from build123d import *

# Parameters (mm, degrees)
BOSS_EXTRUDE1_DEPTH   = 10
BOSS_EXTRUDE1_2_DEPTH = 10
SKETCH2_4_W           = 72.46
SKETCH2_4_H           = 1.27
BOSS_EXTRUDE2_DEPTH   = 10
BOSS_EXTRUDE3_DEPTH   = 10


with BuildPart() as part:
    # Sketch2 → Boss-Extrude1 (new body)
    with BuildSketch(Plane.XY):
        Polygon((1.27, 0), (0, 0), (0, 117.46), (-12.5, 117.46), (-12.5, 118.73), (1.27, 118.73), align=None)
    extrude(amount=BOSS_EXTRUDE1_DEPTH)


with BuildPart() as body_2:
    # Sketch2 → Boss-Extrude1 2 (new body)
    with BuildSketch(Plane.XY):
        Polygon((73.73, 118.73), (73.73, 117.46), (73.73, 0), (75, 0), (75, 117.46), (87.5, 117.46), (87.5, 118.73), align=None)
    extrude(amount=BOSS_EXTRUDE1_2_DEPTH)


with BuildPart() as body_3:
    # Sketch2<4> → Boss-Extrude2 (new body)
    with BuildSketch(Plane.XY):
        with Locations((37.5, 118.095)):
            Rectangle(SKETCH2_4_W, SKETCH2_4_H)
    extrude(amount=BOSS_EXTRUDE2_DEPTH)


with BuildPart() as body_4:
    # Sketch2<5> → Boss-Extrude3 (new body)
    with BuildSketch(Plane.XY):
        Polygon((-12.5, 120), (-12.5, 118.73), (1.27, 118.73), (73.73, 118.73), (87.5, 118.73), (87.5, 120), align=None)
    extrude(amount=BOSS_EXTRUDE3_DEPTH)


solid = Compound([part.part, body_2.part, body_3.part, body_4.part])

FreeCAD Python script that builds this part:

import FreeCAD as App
import Part
import Sketcher
Q = App.Units.Quantity


def add_polygon(sketch, points):
    """Adds a closed chain of lines whose ends are joined by coincident constraints."""
    first, n = sketch.GeometryCount, len(points)
    for a, b in zip(points, points[1:] + points[:1]):
        sketch.addGeometry(Part.LineSegment(App.Vector(*a, 0), App.Vector(*b, 0)), False)
    for i in range(n):
        sketch.addConstraint(Sketcher.Constraint("Coincident", first + i, 2, first + (i + 1) % n, 1))

doc = App.newDocument("Part")
body = doc.addObject("PartDesign::Body", "Body")

# Sketch on XY plane
sketch1 = body.newObject("Sketcher::SketchObject", "Sketch")
sketch1.AttachmentSupport = (doc.getObject("XY_Plane"), [""])
sketch1.MapMode = "FlatFace"
add_polygon(sketch1, [(0, 0), (1.3, 0), (1.3, 118.7), (-12.5, 118.7), (-12.5, 117.5), (0, 117.5)])  # lines 0-5
sketch1.addConstraint([
    Sketcher.Constraint("Horizontal", 0),
    Sketcher.Constraint("Vertical", 1),
    Sketcher.Constraint("Horizontal", 2),
    Sketcher.Constraint("Vertical", 3),
    Sketcher.Constraint("Horizontal", 4),
    Sketcher.Constraint("Vertical", 5),
    Sketcher.Constraint("Coincident", 5, 2, -1, 1),
    Sketcher.Constraint("Equal", 0, 3),
    Sketcher.Constraint("DistanceX", 4, 1, 4, 2, Q("12.5 mm")),
    Sketcher.Constraint("DistanceX", 0, 1, 0, 2, Q("1.27 mm")),
    Sketcher.Constraint("DistanceY", 1, 1, 1, 2, Q("118.73 mm")),
])
pad1 = body.newObject("PartDesign::Pad", "Pad")
pad1.Profile = sketch1
pad1.Length = 10
body2 = doc.addObject("PartDesign::Body", "Body001")

# Sketch on XY plane
sketch2 = body2.newObject("Sketcher::SketchObject", "Sketch001")
sketch2.AttachmentSupport = (doc.getObject("XY_Plane001"), [""])
sketch2.MapMode = "FlatFace"
add_polygon(sketch2, [(73.7, 118.7), (73.7, 0), (75, 0), (75, 117.5), (87.5, 117.5), (87.5, 118.7)])  # lines 0-5
sketch2.addConstraint([
    Sketcher.Constraint("Vertical", 0),
    Sketcher.Constraint("Horizontal", 1),
    Sketcher.Constraint("Vertical", 2),
    Sketcher.Constraint("Horizontal", 3),
    Sketcher.Constraint("Vertical", 4),
    Sketcher.Constraint("Horizontal", 5),
    Sketcher.Constraint("PointOnObject", 0, 2, -1),
    Sketcher.Constraint("Equal", 1, 4),
    Sketcher.Constraint("DistanceX", 3, 1, 3, 2, Q("12.5 mm")),
    Sketcher.Constraint("DistanceX", -1, 1, 1, 2, Q("75 mm")),
    Sketcher.Constraint("DistanceX", 1, 1, 1, 2, Q("1.27 mm")),
    Sketcher.Constraint("DistanceY", 0, 2, 0, 1, Q("118.73 mm")),
])
pad2 = body2.newObject("PartDesign::Pad", "Pad001")
pad2.Profile = sketch2
pad2.Length = 10
body3 = doc.addObject("PartDesign::Body", "Body002")

# Sketch on XY plane
sketch3 = body3.newObject("Sketcher::SketchObject", "Sketch002")
sketch3.AttachmentSupport = (doc.getObject("XY_Plane002"), [""])
sketch3.MapMode = "FlatFace"
add_polygon(sketch3, [(1.3, 118.7), (1.3, 117.5), (73.7, 117.5), (73.7, 118.7)])  # lines 0-3
sketch3.addConstraint([
    Sketcher.Constraint("Vertical", 0),
    Sketcher.Constraint("Horizontal", 1),
    Sketcher.Constraint("Vertical", 2),
    Sketcher.Constraint("Horizontal", 3),
    Sketcher.Constraint("DistanceX", 1, 1, 1, 2, Q("72.46 mm")),
    Sketcher.Constraint("DistanceY", 0, 2, 0, 1, Q("1.27 mm")),
    Sketcher.Constraint("DistanceX", -1, 1, 0, 2, Q("1.27 mm")),
    Sketcher.Constraint("DistanceY", -1, 1, 0, 2, Q("117.46 mm")),
])
pad3 = body3.newObject("PartDesign::Pad", "Pad002")
pad3.Profile = sketch3
pad3.Length = 10
body4 = doc.addObject("PartDesign::Body", "Body003")

# Sketch on XY plane
sketch4 = body4.newObject("Sketcher::SketchObject", "Sketch003")
sketch4.AttachmentSupport = (doc.getObject("XY_Plane003"), [""])
sketch4.MapMode = "FlatFace"
add_polygon(sketch4, [(-12.5, 120), (-12.5, 118.7), (87.5, 118.7), (87.5, 120)])  # lines 0-3
sketch4.addConstraint([
    Sketcher.Constraint("Vertical", 0),
    Sketcher.Constraint("Horizontal", 1),
    Sketcher.Constraint("Vertical", 2),
    Sketcher.Constraint("Horizontal", 3),
    Sketcher.Constraint("DistanceX", 1, 1, 1, 2, Q("100 mm")),
    Sketcher.Constraint("DistanceY", -1, 1, 2, 2, Q("120 mm")),
    Sketcher.Constraint("DistanceY", 0, 2, 0, 1, Q("1.27 mm")),
    Sketcher.Constraint("DistanceX", 0, 2, -1, 1, Q("12.5 mm")),
])
pad4 = body4.newObject("PartDesign::Pad", "Pad003")
pad4.Profile = sketch4
pad4.Length = 10

doc.recompute()
